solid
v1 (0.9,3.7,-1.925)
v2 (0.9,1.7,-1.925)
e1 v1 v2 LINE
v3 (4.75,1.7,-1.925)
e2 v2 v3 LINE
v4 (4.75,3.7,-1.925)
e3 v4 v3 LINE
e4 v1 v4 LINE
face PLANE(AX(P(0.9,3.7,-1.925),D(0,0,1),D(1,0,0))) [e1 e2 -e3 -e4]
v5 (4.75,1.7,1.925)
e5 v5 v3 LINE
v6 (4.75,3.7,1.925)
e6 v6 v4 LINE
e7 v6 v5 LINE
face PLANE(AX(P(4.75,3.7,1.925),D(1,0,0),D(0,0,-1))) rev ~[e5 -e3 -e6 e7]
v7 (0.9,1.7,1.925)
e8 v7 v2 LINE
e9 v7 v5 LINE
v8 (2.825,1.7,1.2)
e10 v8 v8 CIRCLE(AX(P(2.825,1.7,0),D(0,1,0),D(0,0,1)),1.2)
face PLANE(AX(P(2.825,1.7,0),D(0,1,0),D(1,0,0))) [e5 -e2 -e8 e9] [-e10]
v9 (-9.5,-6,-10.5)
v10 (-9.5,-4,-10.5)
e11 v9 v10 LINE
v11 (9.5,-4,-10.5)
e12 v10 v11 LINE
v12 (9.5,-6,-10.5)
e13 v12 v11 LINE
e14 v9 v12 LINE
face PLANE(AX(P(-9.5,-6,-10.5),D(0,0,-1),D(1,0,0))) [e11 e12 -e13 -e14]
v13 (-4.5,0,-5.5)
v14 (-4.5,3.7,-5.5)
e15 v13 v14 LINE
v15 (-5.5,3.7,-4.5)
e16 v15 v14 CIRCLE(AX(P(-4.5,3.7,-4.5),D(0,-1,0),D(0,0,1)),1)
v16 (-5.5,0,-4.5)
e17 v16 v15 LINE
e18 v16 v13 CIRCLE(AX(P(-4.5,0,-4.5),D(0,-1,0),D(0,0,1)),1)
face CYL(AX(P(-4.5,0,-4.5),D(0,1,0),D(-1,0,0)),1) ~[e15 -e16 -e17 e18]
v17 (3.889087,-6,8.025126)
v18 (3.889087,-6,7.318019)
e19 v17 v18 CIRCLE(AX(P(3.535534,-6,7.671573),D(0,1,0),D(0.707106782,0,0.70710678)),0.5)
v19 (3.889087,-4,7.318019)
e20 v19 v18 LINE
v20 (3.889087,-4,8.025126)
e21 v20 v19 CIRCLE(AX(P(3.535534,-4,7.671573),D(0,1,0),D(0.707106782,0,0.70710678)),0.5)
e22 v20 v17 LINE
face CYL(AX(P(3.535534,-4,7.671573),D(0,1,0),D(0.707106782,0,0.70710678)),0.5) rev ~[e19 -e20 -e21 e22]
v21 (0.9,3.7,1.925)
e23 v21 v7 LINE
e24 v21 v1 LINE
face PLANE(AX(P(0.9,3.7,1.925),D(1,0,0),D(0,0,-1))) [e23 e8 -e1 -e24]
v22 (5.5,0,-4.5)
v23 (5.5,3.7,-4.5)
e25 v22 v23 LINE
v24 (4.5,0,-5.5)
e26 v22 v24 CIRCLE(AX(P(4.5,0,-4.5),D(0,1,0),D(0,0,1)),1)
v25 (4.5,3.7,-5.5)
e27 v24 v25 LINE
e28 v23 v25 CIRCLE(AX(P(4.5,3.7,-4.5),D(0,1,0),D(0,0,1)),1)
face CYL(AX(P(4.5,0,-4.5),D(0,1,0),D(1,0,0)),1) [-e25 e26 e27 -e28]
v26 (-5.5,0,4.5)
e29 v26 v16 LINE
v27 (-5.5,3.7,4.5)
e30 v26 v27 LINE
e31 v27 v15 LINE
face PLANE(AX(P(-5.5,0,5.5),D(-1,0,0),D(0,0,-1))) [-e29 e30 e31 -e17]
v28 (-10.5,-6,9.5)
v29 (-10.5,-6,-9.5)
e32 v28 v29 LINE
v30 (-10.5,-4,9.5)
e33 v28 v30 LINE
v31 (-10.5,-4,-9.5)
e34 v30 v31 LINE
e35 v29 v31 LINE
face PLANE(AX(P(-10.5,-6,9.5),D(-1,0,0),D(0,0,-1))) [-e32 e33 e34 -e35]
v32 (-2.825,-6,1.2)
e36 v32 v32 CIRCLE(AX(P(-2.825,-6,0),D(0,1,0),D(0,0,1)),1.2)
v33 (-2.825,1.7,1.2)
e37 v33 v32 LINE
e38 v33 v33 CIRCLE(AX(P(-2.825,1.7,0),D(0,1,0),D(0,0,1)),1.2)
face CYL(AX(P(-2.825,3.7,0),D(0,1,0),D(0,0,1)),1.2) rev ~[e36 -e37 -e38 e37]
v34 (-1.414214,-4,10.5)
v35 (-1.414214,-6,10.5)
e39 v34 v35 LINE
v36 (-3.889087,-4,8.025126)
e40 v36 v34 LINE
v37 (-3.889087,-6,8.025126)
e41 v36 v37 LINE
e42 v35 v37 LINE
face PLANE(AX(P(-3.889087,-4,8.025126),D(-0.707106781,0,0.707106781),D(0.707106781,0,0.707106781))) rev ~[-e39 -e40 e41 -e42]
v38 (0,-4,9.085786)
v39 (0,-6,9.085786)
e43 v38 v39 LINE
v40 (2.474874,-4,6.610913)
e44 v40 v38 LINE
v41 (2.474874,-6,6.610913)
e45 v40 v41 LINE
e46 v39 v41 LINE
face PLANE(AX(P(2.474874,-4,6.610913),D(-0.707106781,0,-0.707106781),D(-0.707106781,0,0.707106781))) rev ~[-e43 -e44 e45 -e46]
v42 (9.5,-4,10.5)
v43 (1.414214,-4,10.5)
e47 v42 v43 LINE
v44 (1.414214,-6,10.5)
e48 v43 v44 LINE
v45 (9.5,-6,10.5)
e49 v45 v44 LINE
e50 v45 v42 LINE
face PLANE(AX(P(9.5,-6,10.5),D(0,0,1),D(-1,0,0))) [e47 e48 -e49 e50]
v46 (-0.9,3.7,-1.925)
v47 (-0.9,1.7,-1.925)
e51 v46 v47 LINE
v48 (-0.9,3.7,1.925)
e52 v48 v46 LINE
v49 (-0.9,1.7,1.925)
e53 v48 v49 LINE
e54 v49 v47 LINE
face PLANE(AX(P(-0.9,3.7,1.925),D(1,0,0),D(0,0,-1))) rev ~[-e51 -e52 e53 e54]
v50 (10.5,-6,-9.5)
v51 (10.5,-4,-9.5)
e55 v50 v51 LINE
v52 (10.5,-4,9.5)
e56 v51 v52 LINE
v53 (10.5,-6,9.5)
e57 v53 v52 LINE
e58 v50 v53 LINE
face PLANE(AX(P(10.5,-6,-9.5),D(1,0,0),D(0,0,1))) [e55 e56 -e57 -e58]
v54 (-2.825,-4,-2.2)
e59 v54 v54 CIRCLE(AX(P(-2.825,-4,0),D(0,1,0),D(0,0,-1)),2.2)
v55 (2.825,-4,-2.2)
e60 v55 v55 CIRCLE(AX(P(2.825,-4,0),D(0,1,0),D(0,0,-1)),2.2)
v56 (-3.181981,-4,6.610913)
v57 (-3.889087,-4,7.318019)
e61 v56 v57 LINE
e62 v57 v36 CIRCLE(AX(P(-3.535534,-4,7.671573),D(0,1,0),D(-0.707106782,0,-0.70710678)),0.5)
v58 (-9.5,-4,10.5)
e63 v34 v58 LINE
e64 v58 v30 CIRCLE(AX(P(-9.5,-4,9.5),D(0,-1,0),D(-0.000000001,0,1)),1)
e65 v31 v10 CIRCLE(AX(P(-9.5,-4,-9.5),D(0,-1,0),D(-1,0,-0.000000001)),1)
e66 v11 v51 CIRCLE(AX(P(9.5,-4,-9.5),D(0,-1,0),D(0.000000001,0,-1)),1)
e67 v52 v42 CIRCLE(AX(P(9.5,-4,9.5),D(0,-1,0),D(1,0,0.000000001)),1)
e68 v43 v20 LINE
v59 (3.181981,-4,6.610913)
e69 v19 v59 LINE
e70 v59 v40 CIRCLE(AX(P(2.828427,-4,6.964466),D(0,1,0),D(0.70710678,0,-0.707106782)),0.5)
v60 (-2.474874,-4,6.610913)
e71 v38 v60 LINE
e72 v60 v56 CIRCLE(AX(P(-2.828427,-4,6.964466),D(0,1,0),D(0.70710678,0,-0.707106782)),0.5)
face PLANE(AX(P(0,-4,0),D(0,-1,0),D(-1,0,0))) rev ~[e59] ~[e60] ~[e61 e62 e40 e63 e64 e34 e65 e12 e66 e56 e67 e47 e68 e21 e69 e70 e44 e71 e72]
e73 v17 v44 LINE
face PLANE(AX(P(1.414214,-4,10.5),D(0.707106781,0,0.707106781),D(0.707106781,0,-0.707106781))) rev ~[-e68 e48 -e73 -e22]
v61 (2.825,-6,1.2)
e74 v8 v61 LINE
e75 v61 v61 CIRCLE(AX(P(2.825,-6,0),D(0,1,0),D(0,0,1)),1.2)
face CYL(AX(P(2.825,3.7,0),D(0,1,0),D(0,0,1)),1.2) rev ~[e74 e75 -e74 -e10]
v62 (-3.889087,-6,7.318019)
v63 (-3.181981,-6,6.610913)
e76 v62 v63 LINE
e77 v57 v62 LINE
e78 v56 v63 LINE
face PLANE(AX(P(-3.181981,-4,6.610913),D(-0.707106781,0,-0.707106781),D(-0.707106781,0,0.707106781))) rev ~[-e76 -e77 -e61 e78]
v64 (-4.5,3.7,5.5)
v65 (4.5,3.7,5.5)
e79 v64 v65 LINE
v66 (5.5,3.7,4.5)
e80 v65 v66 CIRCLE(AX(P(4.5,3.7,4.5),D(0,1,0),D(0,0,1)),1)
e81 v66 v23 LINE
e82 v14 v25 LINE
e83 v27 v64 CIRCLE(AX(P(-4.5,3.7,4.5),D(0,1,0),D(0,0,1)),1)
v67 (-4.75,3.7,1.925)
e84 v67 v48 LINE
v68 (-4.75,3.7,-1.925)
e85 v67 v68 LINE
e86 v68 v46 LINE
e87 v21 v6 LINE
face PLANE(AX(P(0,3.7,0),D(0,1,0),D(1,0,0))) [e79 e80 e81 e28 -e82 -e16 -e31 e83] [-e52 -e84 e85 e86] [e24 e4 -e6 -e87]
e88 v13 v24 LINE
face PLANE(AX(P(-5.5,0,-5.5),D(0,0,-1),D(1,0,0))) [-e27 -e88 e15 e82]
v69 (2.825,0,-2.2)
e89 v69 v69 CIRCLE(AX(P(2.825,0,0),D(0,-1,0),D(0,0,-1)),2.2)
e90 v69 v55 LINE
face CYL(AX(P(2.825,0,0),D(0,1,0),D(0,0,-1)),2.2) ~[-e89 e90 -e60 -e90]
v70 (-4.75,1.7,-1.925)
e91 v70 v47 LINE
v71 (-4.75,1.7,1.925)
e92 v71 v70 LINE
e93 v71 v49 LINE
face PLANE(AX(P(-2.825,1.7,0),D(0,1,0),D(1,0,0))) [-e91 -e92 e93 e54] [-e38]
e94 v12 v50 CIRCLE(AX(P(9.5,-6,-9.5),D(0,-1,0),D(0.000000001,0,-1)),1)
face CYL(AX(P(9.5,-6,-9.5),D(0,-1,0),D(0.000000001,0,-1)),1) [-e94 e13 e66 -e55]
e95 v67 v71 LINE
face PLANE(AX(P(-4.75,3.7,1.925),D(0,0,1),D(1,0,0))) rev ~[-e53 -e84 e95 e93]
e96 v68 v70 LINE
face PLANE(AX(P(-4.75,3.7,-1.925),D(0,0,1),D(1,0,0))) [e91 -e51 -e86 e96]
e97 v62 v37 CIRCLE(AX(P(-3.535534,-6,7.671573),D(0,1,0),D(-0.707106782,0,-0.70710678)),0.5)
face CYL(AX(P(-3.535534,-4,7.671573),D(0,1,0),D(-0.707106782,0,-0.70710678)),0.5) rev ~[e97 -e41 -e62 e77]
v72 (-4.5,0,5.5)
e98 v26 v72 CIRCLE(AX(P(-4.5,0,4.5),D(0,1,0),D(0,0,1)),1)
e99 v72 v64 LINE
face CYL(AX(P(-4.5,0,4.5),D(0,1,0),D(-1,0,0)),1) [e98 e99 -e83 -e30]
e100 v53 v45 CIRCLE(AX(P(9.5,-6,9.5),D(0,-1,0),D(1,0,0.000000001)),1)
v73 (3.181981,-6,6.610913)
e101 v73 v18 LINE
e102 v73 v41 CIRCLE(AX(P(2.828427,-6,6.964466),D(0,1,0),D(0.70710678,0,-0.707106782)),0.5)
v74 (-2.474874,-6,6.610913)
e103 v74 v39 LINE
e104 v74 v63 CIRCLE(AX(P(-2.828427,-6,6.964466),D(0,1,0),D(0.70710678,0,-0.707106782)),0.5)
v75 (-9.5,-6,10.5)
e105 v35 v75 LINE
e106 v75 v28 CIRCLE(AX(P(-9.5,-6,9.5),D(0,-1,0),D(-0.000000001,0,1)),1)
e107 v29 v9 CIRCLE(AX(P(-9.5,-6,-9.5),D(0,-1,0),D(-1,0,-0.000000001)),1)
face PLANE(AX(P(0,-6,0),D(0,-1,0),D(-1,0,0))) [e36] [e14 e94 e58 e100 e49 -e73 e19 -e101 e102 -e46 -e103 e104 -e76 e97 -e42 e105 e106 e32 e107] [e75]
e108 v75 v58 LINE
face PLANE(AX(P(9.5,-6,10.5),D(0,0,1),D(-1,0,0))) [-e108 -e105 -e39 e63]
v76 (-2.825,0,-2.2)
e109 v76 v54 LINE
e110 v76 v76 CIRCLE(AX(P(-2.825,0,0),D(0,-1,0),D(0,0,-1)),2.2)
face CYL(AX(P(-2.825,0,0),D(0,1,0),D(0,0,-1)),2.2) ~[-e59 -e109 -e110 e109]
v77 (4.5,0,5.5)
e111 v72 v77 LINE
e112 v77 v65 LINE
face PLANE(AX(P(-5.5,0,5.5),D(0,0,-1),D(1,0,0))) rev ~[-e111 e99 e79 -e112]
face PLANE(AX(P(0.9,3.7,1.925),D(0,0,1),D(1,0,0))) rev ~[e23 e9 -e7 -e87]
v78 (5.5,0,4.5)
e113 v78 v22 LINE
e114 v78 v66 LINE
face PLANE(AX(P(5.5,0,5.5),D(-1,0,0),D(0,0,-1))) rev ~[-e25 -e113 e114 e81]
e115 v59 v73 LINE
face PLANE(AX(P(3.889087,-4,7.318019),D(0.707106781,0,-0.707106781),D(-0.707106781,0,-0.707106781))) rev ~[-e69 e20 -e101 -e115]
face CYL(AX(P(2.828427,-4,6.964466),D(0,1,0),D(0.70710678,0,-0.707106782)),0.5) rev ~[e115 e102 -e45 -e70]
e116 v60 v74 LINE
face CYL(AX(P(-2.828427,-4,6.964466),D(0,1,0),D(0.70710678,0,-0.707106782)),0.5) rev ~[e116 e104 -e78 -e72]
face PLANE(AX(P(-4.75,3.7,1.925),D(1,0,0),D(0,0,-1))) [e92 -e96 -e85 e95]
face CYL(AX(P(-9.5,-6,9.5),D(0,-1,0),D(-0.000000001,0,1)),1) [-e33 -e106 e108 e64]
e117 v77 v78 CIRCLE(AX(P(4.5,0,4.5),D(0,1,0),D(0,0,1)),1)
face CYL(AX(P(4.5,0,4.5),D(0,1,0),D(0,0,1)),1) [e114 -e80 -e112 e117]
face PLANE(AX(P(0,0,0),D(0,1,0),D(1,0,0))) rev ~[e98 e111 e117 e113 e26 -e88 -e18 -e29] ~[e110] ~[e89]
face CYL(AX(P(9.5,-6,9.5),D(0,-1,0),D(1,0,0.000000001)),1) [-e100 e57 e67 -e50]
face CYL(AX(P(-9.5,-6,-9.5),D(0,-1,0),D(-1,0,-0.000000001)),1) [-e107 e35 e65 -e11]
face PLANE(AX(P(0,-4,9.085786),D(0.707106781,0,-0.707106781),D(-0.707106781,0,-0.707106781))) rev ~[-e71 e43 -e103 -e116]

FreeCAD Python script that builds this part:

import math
import FreeCAD as App
import Part
import Sketcher
from FreeCAD import Vector
Q = App.Units.Quantity


def edges_at(feature, points):
    """Names of the edges that pass closest to the given points."""
    edges = feature.Shape.Edges
    near = lambda p: min(range(len(edges)), key=lambda i: edges[i].distToShape(Part.Vertex(*p))[0])
    return sorted({f"Edge{near(p) + 1}" for p in points})

doc = App.newDocument("Part")
body = doc.addObject("PartDesign::Body", "Body")

# Sketch on XZ plane
sketch1 = doc.addObject("Sketcher::SketchObject", "Sketch")
body.addObject(sketch1)
sketch1.AttachmentSupport = (doc.XZ_Plane, [""])
sketch1.MapMode = "FlatFace"
sketch1.addGeometry(Part.LineSegment(Vector(-6, -6, 0), Vector(-6, 6, 0)), False)
sketch1.addGeometry(Part.LineSegment(Vector(-6, 6, 0), Vector(6, 6, 0)), False)
sketch1.addGeometry(Part.LineSegment(Vector(6, 6, 0), Vector(6, -6, 0)), False)
sketch1.addGeometry(Part.LineSegment(Vector(6, -6, 0), Vector(-6, -6, 0)), False)
sketch1.addConstraint(Sketcher.Constraint("Coincident", 0, 2, 1, 1))
sketch1.addConstraint(Sketcher.Constraint("Coincident", 1, 2, 2, 1))
sketch1.addConstraint(Sketcher.Constraint("Coincident", 2, 2, 3, 1))
sketch1.addConstraint(Sketcher.Constraint("Coincident", 3, 2, 0, 1))
sketch1.addConstraint(Sketcher.Constraint("Vertical", 0))
sketch1.addConstraint(Sketcher.Constraint("Horizontal", 1))
sketch1.addConstraint(Sketcher.Constraint("Vertical", 2))
sketch1.addConstraint(Sketcher.Constraint("Horizontal", 3))
sketch1.addConstraint(Sketcher.Constraint("Symmetric", 0, 2, 2, 2, -1, 1))
sketch1.addConstraint(Sketcher.Constraint("Equal", 3, 0))
sketch1.addConstraint(Sketcher.Constraint("DistanceX", 1, 1, 1, 2, Q("11 mm")))
pad1 = doc.addObject("PartDesign::Pad", "Pad")
body.addObject(pad1)
pad1.Profile = sketch1
pad1.Length = 3.7
pad1.Reversed = True
doc.recompute()

fillet = doc.addObject("PartDesign::Fillet", "Fillet")
body.addObject(fillet)
fillet.Base = (pad1, edges_at(pad1, [
    (5.5, 1.85, 5.5),
    (-5.5, 1.85, 5.5),
    (-5.5, 1.85, -5.5),
    (5.5, 1.85, -5.5),
]))
fillet.Radius = 1

# Sketch on XZ plane
sketch2 = doc.addObject("Sketcher::SketchObject", "Sketch001")
body.addObject(sketch2)
sketch2.AttachmentSupport = (doc.XZ_Plane, [""])
sketch2.MapMode = "FlatFace"
sketch2.AttachmentOffset = App.Placement(Vector(0, 0, -3.7), App.Rotation())
sketch2.addGeometry(Part.LineSegment(Vector(-4.8, -1.9, 0), Vector(-4.8, 1.9, 0)), False)
sketch2.addGeometry(Part.LineSegment(Vector(-4.8, 1.9, 0), Vector(-0.9, 1.9, 0)), False)
sketch2.addGeometry(Part.LineSegment(Vector(-0.9, 1.9, 0), Vector(-0.9, -1.9, 0)), False)
sketch2.addGeometry(Part.LineSegment(Vector(-0.9, -1.9, 0), Vector(-4.8, -1.9, 0)), False)
sketch2.addGeometry(Part.LineSegment(Vector(0.9, -1.9, 0), Vector(0.9, 1.9, 0)), False)
sketch2.addGeometry(Part.LineSegment(Vector(0.9, 1.9, 0), Vector(4.8, 1.9, 0)), False)
sketch2.addGeometry(Part.LineSegment(Vector(4.8, 1.9, 0), Vector(4.8, -1.9, 0)), False)
sketch2.addGeometry(Part.LineSegment(Vector(4.8, -1.9, 0), Vector(0.9, -1.9, 0)), False)
sketch2.addConstraint(Sketcher.Constraint("Coincident", 0, 2, 1, 1))
sketch2.addConstraint(Sketcher.Constraint("Coincident", 1, 2, 2, 1))
sketch2.addConstraint(Sketcher.Constraint("Coincident", 2, 2, 3, 1))
sketch2.addConstraint(Sketcher.Constraint("Coincident", 3, 2, 0, 1))
sketch2.addConstraint(Sketcher.Constraint("Coincident", 4, 2, 5, 1))
sketch2.addConstraint(Sketcher.Constraint("Coincident", 5, 2, 6, 1))
sketch2.addConstraint(Sketcher.Constraint("Coincident", 6, 2, 7, 1))
sketch2.addConstraint(Sketcher.Constraint("Coincident", 7, 2, 4, 1))
sketch2.addConstraint(Sketcher.Constraint("Vertical", 0))
sketch2.addConstraint(Sketcher.Constraint("Horizontal", 1))
sketch2.addConstraint(Sketcher.Constraint("Vertical", 2))
sketch2.addConstraint(Sketcher.Constraint("Horizontal", 3))
sketch2.addConstraint(Sketcher.Constraint("Vertical", 4))
sketch2.addConstraint(Sketcher.Constraint("Horizontal", 5))
sketch2.addConstraint(Sketcher.Constraint("Vertical", 6))
sketch2.addConstraint(Sketcher.Constraint("Horizontal", 7))
sketch2.addConstraint(Sketcher.Constraint("Symmetric", 2, 2, 4, 2, -1, 1))
sketch2.addConstraint(Sketcher.Constraint("Symmetric", 0, 2, 6, 2, -1, 1))
sketch2.addConstraint(Sketcher.Constraint("Horizontal", 1, 2, 4, 2))
sketch2.addConstraint(Sketcher.Constraint("Equal", 7, 0))
sketch2.addConstraint(Sketcher.Constraint("DistanceX", 1, 1, 1, 2, Q("3.85 mm")))
sketch2.addConstraint(Sketcher.Constraint("DistanceX", 1, 2, -1, 1, Q("0.9 mm")))
pocket1 = doc.addObject("PartDesign::Pocket", "Pocket")
body.addObject(pocket1)
pocket1.Profile = sketch2
pocket1.Length = 2
pocket1.Reversed = True

# Sketch on XZ plane
sketch3 = doc.addObject("Sketcher::SketchObject", "Sketch002")
body.addObject(sketch3)
sketch3.AttachmentSupport = (doc.XZ_Plane, [""])
sketch3.MapMode = "FlatFace"
sketch3.addGeometry(Part.Circle(Vector(-2.8, 0, 0), Vector(0, 0, 1), 2.2), False)
sketch3.addGeometry(Part.Circle(Vector(2.8, 0, 0), Vector(0, 0, 1), 2.2), False)
sketch3.addConstraint(Sketcher.Constraint("Equal", 0, 1))
sketch3.addConstraint(Sketcher.Constraint("Symmetric", 0, 3, 1, 3, -1, 1))
sketch3.addConstraint(Sketcher.Constraint("PointOnObject", 0, 3, -1))
sketch3.addConstraint(Sketcher.Constraint("Diameter", 0, Q("4.4 mm")))
sketch3.addConstraint(Sketcher.Constraint("DistanceX", 0, 3, 1, 3, Q("5.65 mm")))
pad2 = doc.addObject("PartDesign::Pad", "Pad001")
body.addObject(pad2)
pad2.Profile = sketch3
pad2.Length = 6

# Sketch on XZ plane
sketch4 = doc.addObject("Sketcher::SketchObject", "Sketch003")
body.addObject(sketch4)
sketch4.AttachmentSupport = (doc.XZ_Plane, [""])
sketch4.MapMode = "FlatFace"
sketch4.AttachmentOffset = App.Placement(Vector(0, 0, 6), App.Rotation())
sketch4.addGeometry(Part.LineSegment(Vector(-9.5, -10.5, 0), Vector(9.5, -10.5, 0)), False)
sketch4.addGeometry(Part.ArcOfCircle(Part.Circle(Vector(9.5, -9.5, 0), Vector(0, 0, 1), 1), math.radians(-90), math.radians(0)), False)
sketch4.addGeometry(Part.LineSegment(Vector(10.5, -9.5, 0), Vector(10.5, 9.5, 0)), False)
sketch4.addGeometry(Part.ArcOfCircle(Part.Circle(Vector(9.5, 9.5, 0), Vector(0, 0, 1), 1), math.radians(0), math.radians(90)), False)
sketch4.addGeometry(Part.LineSegment(Vector(9.5, 10.5, 0), Vector(-9.5, 10.5, 0)), False)
sketch4.addGeometry(Part.ArcOfCircle(Part.Circle(Vector(-9.5, 9.5, 0), Vector(0, 0, 1), 1), math.radians(90), math.radians(180)), False)
sketch4.addGeometry(Part.LineSegment(Vector(-10.5, 9.5, 0), Vector(-10.5, -9.5, 0)), False)
sketch4.addGeometry(Part.ArcOfCircle(Part.Circle(Vector(-9.5, -9.5, 0), Vector(0, 0, 1), 1), math.radians(-180), math.radians(-90)), False)
sketch4.addConstraint(Sketcher.Constraint("Tangent", 0, 2, 1, 1))
sketch4.addConstraint(Sketcher.Constraint("Tangent", 1, 2, 2, 1))
sketch4.addConstraint(Sketcher.Constraint("Tangent", 2, 2, 3, 1))
sketch4.addConstraint(Sketcher.Constraint("Tangent", 3, 2, 4, 1))
sketch4.addConstraint(Sketcher.Constraint("Tangent", 4, 2, 5, 1))
sketch4.addConstraint(Sketcher.Constraint("Tangent", 5, 2, 6, 1))
sketch4.addConstraint(Sketcher.Constraint("Tangent", 6, 2, 7, 1))
sketch4.addConstraint(Sketcher.Constraint("Tangent", 7, 2, 0, 1))
sketch4.addConstraint(Sketcher.Constraint("Horizontal", 0))
sketch4.addConstraint(Sketcher.Constraint("Vertical", 2))
sketch4.addConstraint(Sketcher.Constraint("Horizontal", 4))
sketch4.addConstraint(Sketcher.Constraint("Vertical", 6))
sketch4.addConstraint(Sketcher.Constraint("Equal", 1, 3))
sketch4.addConstraint(Sketcher.Constraint("Equal", 3, 5))
sketch4.addConstraint(Sketcher.Constraint("Equal", 5, 7))
sketch4.addConstraint(Sketcher.Constraint("Symmetric", 1, 3, 5, 3, -1, 1))
sketch4.addConstraint(Sketcher.Constraint("Equal", 4, 2))
sketch4.addConstraint(Sketcher.Constraint("Radius", 1, Q("1 mm")))
sketch4.addConstraint(Sketcher.Constraint("DistanceX", 0, 1, 0, 2, Q("19 mm")))
pad3 = doc.addObject("PartDesign::Pad", "Pad002")
body.addObject(pad3)
pad3.Profile = sketch4
pad3.Length = 2
pad3.Reversed = True

# Sketch on XZ plane
sketch5 = doc.addObject("Sketcher::SketchObject", "Sketch004")
body.addObject(sketch5)
sketch5.AttachmentSupport = (doc.XZ_Plane, [""])
sketch5.MapMode = "FlatFace"
sketch5.AttachmentOffset = App.Placement(Vector(0, 0, -3.7), App.Rotation())
sketch5.addGeometry(Part.Circle(Vector(-2.8, 0, 0), Vector(0, 0, 1), 1.2), False)
sketch5.addGeometry(Part.Circle(Vector(2.8, 0, 0), Vector(0, 0, 1), 1.2), False)
sketch5.addConstraint(Sketcher.Constraint("Equal", 0, 1))
sketch5.addConstraint(Sketcher.Constraint("Symmetric", 0, 3, 1, 3, -1, 1))
sketch5.addConstraint(Sketcher.Constraint("PointOnObject", 0, 3, -1))
sketch5.addConstraint(Sketcher.Constraint("Diameter", 0, Q("2.4 mm")))
sketch5.addConstraint(Sketcher.Constraint("DistanceX", 0, 3, 1, 3, Q("5.65 mm")))
pocket2 = doc.addObject("PartDesign::Pocket", "Pocket001")
body.addObject(pocket2)
pocket2.Profile = sketch5
pocket2.Type = "ThroughAll"
pocket2.Reversed = True

# Sketch on XZ plane
sketch6 = doc.addObject("Sketcher::SketchObject", "Sketch005")
body.addObject(sketch6)
sketch6.AttachmentSupport = (doc.XZ_Plane, [""])
sketch6.MapMode = "FlatFace"
sketch6.AttachmentOffset = App.Placement(Vector(0, 0, 4), App.Rotation())
sketch6.addGeometry(Part.LineSegment(Vector(1.4, 10.5, 0), Vector(3.9, 8, 0)), False)
sketch6.addGeometry(Part.ArcOfCircle(Part.Circle(Vector(3.5, 7.7, 0), Vector(0, 0, 1), 0.5), math.radians(-45), math.radians(45)), False)
sketch6.addGeometry(Part.LineSegment(Vector(3.9, 7.3, 0), Vector(3.2, 6.6, 0)), False)
sketch6.addGeometry(Part.ArcOfCircle(Part.Circle(Vector(2.8, 7, 0), Vector(0, 0, 1), 0.5), math.radians(-135), math.radians(-45)), False)
sketch6.addGeometry(Part.LineSegment(Vector(2.5, 6.6, 0), Vector(0, 9.1, 0)), False)
sketch6.addGeometry(Part.LineSegment(Vector(0, 9.1, 0), Vector(-2.5, 6.6, 0)), False)
sketch6.addGeometry(Part.ArcOfCircle(Part.Circle(Vector(-2.8, 7, 0), Vector(0, 0, 1), 0.5), math.radians(-135), math.radians(-45)), False)
sketch6.addGeometry(Part.LineSegment(Vector(-3.2, 6.6, 0), Vector(-3.9, 7.3, 0)), False)
sketch6.addGeometry(Part.ArcOfCircle(Part.Circle(Vector(-3.5, 7.7, 0), Vector(0, 0, 1), 0.5), math.radians(135), math.radians(225)), False)
sketch6.addGeometry(Part.LineSegment(Vector(-3.9, 8, 0), Vector(-1.4, 10.5, 0)), False)
sketch6.addGeometry(Part.LineSegment(Vector(-1.4, 10.5, 0), Vector(1.4, 10.5, 0)), False)
sketch6.addConstraint(Sketcher.Constraint("Tangent", 0, 2, 1, 2))
sketch6.addConstraint(Sketcher.Constraint("Tangent", 1, 1, 2, 1))
sketch6.addConstraint(Sketcher.Constraint("Tangent", 2, 2, 3, 2))
sketch6.addConstraint(Sketcher.Constraint("Tangent", 3, 1, 4, 1))
sketch6.addConstraint(Sketcher.Constraint("Coincident", 4, 2, 5, 1))
sketch6.addConstraint(Sketcher.Constraint("Tangent", 5, 2, 6, 2))
sketch6.addConstraint(Sketcher.Constraint("Tangent", 6, 1, 7, 1))
sketch6.addConstraint(Sketcher.Constraint("Tangent", 7, 2, 8, 2))
sketch6.addConstraint(Sketcher.Constraint("Tangent", 8, 1, 9, 1))
sketch6.addConstraint(Sketcher.Constraint("Coincident", 9, 2, 10, 1))
sketch6.addConstraint(Sketcher.Constraint("Coincident", 10, 2, 0, 1))
sketch6.addConstraint(Sketcher.Constraint("Horizontal", 10))
sketch6.addConstraint(Sketcher.Constraint("Equal", 1, 3))
sketch6.addConstraint(Sketcher.Constraint("Equal", 3, 6))
sketch6.addConstraint(Sketcher.Constraint("Equal", 6, 8))
sketch6.addConstraint(Sketcher.Constraint("Symmetric", 3, 3, 6, 3, -2))
sketch6.addConstraint(Sketcher.Constraint("Symmetric", 1, 3, 8, 3, -2))
sketch6.addConstraint(Sketcher.Constraint("PointOnObject", 4, 2, -2))
sketch6.addConstraint(Sketcher.Constraint("Perpendicular", 0, 2))
sketch6.addConstraint(Sketcher.Constraint("Perpendicular", 2, 4))
sketch6.addConstraint(Sketcher.Constraint("Perpendicular", 4, 5))
sketch6.addConstraint(Sketcher.Constraint("Perpendicular", 7, 9))
sketch6.addConstraint(Sketcher.Constraint("Equal", 0, 4))
sketch6.addConstraint(Sketcher.Constraint("Radius", 1, Q("0.5 mm")))
sketch6.addConstraint(Sketcher.Constraint("Distance", 2, Q("1 mm")))
sketch6.addConstraint(Sketcher.Constraint("Distance", 0, Q("3.5 mm")))
sketch6.addConstraint(Sketcher.Constraint("DistanceY", -1, 1, 9, 2, Q("10.5 mm")))
pocket3 = doc.addObject("PartDesign::Pocket", "Pocket002")
body.addObject(pocket3)
pocket3.Profile = sketch6
pocket3.Type = "ThroughAll"
pocket3.Reversed = True

doc.recompute()
